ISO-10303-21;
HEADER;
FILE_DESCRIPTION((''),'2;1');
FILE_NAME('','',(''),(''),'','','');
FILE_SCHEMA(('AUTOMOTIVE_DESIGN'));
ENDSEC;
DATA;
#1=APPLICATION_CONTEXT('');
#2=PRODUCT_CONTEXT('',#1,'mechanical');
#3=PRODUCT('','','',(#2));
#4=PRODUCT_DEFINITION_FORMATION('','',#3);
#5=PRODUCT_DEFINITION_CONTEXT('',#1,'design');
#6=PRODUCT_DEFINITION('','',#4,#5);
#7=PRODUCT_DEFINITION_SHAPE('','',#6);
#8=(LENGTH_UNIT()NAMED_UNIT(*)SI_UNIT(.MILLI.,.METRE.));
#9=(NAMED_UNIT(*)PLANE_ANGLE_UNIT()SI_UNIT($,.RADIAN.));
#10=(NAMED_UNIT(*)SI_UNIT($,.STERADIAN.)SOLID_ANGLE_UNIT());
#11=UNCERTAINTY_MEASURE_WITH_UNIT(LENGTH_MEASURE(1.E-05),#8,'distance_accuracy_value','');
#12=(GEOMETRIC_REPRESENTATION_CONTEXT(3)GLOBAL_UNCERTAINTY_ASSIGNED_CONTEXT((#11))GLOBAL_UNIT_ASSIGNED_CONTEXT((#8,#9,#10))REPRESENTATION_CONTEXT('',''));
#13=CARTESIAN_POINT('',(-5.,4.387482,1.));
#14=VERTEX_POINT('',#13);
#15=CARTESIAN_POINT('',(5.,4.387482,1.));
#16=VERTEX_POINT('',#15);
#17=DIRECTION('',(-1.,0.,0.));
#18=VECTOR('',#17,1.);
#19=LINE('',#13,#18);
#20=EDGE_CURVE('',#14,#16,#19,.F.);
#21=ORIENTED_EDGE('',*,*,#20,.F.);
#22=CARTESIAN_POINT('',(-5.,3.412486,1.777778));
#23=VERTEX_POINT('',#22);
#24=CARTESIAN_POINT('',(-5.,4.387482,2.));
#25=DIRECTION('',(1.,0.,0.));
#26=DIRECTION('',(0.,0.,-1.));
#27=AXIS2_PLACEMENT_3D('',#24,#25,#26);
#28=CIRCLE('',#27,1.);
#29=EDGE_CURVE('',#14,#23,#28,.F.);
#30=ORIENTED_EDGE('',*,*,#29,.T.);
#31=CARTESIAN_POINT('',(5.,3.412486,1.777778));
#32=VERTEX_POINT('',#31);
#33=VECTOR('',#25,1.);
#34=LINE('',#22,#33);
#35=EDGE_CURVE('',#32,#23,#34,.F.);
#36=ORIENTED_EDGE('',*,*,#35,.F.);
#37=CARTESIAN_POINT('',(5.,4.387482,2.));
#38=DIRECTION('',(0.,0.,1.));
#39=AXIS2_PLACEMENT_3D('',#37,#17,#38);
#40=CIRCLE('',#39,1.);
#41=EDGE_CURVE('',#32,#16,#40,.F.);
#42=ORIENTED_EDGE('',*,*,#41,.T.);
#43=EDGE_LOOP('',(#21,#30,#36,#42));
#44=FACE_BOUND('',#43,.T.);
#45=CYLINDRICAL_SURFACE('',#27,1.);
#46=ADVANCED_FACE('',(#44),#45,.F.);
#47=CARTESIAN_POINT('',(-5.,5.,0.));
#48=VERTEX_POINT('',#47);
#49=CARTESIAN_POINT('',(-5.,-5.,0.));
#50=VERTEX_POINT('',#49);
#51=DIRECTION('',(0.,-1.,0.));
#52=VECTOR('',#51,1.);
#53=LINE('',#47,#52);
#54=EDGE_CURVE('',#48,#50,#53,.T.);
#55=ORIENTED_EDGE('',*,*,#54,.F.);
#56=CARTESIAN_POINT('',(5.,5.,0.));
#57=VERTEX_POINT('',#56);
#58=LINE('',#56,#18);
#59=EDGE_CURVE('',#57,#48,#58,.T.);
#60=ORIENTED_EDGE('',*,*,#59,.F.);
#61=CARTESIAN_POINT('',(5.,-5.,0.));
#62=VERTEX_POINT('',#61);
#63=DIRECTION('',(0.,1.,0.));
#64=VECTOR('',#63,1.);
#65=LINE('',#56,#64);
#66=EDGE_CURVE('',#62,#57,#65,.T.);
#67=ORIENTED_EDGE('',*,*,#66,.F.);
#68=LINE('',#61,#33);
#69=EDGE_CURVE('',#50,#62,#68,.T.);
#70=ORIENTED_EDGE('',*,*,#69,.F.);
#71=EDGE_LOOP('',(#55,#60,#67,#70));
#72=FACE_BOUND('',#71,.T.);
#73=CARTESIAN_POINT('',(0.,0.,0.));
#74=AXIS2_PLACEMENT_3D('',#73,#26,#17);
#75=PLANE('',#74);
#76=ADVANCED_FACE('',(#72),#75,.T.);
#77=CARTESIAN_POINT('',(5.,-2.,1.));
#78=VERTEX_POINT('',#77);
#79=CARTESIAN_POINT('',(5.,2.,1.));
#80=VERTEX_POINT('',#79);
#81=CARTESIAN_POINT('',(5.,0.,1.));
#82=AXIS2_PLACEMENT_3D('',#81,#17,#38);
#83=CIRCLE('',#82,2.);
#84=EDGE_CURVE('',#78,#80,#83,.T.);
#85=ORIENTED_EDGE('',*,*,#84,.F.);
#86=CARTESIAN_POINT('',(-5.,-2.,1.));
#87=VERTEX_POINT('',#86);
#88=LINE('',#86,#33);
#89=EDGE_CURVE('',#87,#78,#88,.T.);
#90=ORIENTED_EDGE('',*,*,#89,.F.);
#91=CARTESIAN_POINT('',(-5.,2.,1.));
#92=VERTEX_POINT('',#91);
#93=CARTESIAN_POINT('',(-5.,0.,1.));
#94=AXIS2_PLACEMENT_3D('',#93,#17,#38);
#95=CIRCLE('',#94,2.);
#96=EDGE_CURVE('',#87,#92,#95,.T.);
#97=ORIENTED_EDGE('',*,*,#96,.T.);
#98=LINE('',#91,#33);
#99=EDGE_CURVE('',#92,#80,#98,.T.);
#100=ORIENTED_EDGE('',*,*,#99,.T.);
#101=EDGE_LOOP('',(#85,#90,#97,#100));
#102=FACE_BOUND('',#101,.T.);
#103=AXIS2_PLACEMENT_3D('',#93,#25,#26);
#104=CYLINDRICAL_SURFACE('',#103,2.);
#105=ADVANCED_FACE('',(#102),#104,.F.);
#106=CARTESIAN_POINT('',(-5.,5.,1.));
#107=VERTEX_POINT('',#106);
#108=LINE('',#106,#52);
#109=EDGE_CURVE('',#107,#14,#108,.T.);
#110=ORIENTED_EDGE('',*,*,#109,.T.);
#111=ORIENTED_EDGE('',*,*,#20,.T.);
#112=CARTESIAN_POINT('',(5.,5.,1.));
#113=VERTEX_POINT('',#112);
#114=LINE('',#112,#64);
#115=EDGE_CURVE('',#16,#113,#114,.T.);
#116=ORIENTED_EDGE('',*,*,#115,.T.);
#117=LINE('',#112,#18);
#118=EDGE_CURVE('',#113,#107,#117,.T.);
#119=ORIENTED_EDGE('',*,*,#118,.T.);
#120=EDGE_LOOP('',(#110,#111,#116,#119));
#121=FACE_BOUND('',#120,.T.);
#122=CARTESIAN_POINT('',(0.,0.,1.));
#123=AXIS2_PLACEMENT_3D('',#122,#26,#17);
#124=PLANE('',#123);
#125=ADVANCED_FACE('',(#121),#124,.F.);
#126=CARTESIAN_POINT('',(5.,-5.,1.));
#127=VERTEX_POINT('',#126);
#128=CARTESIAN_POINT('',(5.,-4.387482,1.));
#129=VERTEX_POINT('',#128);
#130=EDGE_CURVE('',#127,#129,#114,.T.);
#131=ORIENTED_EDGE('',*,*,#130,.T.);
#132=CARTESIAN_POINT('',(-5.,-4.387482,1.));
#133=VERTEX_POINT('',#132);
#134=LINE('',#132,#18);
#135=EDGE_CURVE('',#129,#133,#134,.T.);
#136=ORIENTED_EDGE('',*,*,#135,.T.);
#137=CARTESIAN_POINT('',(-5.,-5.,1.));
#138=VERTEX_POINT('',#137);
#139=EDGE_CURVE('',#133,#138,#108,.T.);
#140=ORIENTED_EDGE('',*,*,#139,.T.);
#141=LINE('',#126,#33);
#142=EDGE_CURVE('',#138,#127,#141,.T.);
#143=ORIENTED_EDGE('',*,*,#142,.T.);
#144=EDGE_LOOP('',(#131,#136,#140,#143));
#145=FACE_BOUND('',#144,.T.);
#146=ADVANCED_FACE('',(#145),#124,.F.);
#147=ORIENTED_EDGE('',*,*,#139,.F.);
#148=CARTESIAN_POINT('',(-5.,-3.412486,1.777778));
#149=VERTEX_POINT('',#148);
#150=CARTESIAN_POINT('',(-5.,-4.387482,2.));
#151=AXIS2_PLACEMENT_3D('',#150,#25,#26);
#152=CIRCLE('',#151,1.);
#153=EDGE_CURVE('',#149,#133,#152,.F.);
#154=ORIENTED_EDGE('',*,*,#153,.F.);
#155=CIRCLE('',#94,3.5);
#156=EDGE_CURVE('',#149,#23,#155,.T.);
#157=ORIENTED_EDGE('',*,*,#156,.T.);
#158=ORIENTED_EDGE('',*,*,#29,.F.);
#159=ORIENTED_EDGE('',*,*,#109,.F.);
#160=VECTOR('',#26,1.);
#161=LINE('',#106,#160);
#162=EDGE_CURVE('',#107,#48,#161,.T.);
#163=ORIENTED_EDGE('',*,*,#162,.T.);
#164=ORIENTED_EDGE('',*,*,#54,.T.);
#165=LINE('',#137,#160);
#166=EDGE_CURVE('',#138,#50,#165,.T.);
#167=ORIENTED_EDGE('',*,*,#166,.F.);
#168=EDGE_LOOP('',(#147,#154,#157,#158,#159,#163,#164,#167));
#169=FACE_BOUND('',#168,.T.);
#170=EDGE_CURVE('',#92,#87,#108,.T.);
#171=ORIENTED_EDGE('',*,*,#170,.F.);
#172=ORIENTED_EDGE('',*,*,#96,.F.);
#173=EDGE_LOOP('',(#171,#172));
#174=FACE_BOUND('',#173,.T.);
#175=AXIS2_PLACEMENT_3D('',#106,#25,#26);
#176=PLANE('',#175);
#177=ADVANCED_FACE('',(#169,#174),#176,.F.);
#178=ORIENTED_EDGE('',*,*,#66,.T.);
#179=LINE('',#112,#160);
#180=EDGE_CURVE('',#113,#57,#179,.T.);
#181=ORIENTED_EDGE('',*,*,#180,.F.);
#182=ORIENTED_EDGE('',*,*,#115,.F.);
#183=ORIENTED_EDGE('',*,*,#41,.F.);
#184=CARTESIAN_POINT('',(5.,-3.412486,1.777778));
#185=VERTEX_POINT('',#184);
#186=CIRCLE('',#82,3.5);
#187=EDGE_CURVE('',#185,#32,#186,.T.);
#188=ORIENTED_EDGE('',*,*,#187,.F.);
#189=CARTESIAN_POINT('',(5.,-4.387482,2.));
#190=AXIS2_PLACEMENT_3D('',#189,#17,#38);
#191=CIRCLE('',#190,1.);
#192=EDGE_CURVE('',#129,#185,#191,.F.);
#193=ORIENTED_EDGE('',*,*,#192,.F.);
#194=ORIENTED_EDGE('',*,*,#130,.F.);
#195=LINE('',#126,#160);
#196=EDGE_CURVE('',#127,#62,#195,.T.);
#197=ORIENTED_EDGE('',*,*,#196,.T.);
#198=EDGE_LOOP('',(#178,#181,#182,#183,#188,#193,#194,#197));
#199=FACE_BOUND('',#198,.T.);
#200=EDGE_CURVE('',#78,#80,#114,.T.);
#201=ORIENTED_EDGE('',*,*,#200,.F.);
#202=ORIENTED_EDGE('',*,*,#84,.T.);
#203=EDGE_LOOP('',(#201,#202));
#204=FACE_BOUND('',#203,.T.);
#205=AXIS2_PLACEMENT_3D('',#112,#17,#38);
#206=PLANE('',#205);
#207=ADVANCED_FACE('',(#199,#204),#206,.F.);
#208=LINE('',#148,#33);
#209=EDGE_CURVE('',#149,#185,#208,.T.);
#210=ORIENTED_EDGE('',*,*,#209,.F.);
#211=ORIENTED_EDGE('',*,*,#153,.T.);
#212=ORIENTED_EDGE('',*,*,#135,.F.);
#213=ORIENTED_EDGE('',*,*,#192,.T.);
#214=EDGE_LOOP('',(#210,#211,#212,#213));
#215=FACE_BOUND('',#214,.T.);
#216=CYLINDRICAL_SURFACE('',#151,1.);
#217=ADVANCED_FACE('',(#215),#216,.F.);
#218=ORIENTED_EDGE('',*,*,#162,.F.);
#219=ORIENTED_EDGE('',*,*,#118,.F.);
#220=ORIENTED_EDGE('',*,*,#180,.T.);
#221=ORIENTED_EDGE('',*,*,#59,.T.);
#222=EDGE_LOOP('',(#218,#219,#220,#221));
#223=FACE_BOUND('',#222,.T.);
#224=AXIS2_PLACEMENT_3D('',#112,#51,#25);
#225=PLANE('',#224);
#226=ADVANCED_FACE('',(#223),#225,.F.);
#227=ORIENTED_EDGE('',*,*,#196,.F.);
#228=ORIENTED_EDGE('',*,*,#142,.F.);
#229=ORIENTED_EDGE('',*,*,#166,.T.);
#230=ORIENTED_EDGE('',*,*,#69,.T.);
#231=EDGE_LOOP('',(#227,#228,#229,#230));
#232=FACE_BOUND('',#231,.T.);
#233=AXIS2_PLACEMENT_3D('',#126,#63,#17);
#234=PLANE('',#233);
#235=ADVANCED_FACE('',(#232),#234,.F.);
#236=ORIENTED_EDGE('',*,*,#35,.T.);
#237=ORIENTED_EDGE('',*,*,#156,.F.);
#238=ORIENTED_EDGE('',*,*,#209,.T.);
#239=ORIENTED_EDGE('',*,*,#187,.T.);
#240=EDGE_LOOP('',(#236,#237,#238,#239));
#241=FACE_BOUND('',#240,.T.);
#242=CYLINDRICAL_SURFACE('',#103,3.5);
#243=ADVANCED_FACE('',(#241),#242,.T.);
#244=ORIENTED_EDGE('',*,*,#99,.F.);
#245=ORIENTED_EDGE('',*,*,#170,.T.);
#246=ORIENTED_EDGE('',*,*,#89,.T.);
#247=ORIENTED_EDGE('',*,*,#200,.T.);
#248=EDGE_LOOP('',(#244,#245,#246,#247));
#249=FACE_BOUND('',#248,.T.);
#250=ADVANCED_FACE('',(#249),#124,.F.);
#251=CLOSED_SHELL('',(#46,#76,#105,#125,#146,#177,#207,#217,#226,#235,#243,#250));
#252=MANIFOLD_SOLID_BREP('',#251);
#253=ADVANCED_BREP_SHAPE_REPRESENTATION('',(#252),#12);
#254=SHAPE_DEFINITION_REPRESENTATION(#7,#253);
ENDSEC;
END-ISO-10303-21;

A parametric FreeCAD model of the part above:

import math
import FreeCAD as App
import Part
import Sketcher


def edges_at(feature, points):
    """Names of the edges that pass closest to the given points."""
    edges = feature.Shape.Edges
    near = lambda p: min(range(len(edges)), key=lambda i: edges[i].distToShape(Part.Vertex(*p))[0])
    return sorted({f"Edge{near(p) + 1}" for p in points})

doc = App.newDocument("Part")
body = doc.addObject("PartDesign::Body", "Body")

# Sketch on XY plane
sketch1 = doc.addObject("Sketcher::SketchObject", "Sketch")
body.addObject(sketch1)
sketch1.AttachmentSupport = (doc.XY_Plane, [""])
sketch1.MapMode = "FlatFace"
sketch1.addGeometry([
    Part.LineSegment(App.Vector(-5, 5, 0), App.Vector(-5, -5, 0)),
    Part.LineSegment(App.Vector(-5, -5, 0), App.Vector(5, -5, 0)),
    Part.LineSegment(App.Vector(5, -5, 0), App.Vector(5, 5, 0)),
    Part.LineSegment(App.Vector(5, 5, 0), App.Vector(-5, 5, 0)),
], False)
sketch1.addConstraint([
    Sketcher.Constraint("Coincident", 0, 2, 1, 1),
    Sketcher.Constraint("Coincident", 1, 2, 2, 1),
    Sketcher.Constraint("Coincident", 2, 2, 3, 1),
    Sketcher.Constraint("Coincident", 3, 2, 0, 1),
    Sketcher.Constraint("Vertical", 0),
    Sketcher.Constraint("Horizontal", 1),
    Sketcher.Constraint("Vertical", 2),
    Sketcher.Constraint("Horizontal", 3),
    Sketcher.Constraint("Symmetric", 0, 2, 2, 2, -1, 1),
    Sketcher.Constraint("Equal", 3, 0),
    Sketcher.Constraint("DistanceX", 1, 1, 1, 2, 10.0),
])
pad1 = doc.addObject("PartDesign::Pad", "Pad")
body.addObject(pad1)
pad1.Profile = sketch1
pad1.Length = 1

# Sketch on YZ plane
sketch2 = doc.addObject("Sketcher::SketchObject", "Sketch001")
body.addObject(sketch2)
sketch2.AttachmentSupport = (doc.YZ_Plane, [""])
sketch2.MapMode = "FlatFace"
sketch2.AttachmentOffset = App.Placement(App.Vector(0, 0, 5), App.Rotation())
sketch2.addGeometry([
    Part.LineSegment(App.Vector(2, 1, 0), App.Vector(3.5, 1, 0)),
    Part.ArcOfCircle(Part.Circle(App.Vector(0, 1, 0), App.Vector(0, 0, 1), 3.5), math.radians(0), math.radians(180)),
    Part.LineSegment(App.Vector(-3.5, 1, 0), App.Vector(-2, 1, 0)),
    Part.ArcOfCircle(Part.Circle(App.Vector(0, 1, 0), App.Vector(0, 0, 1), 2), math.radians(0), math.radians(180)),
], False)
sketch2.addConstraint([
    Sketcher.Constraint("Coincident", 0, 2, 1, 1),
    Sketcher.Constraint("Coincident", 1, 2, 2, 1),
    Sketcher.Constraint("Coincident", 2, 2, 3, 2),
    Sketcher.Constraint("Coincident", 3, 1, 0, 1),
    Sketcher.Constraint("Horizontal", 0),
    Sketcher.Constraint("Horizontal", 2),
    Sketcher.Constraint("Coincident", 3, 3, 1, 3),
    Sketcher.Constraint("Symmetric", 0, 2, 1, 2, -2),
    Sketcher.Constraint("Horizontal", 3, 3, 0, 2),
    Sketcher.Constraint("Radius", 3, 2.0),
    Sketcher.Constraint("Radius", 1, 3.5),
    Sketcher.Constraint("DistanceY", -1, 1, 1, 3, 1.0),
])
pad2 = doc.addObject("PartDesign::Pad", "Pad001")
body.addObject(pad2)
pad2.Profile = sketch2
pad2.Length = 10
pad2.Reversed = True
doc.recompute()

fillet = doc.addObject("PartDesign::Fillet", "Fillet")
body.addObject(fillet)
fillet.Base = (pad2, edges_at(pad2, [(0, 3.5, 1)]))
fillet.Radius = 1
doc.recompute()

fillet2 = doc.addObject("PartDesign::Fillet", "Fillet001")
body.addObject(fillet2)
fillet2.Base = (fillet, edges_at(fillet, [(0, -3.5, 1)]))
fillet2.Radius = 1

doc.recompute()
